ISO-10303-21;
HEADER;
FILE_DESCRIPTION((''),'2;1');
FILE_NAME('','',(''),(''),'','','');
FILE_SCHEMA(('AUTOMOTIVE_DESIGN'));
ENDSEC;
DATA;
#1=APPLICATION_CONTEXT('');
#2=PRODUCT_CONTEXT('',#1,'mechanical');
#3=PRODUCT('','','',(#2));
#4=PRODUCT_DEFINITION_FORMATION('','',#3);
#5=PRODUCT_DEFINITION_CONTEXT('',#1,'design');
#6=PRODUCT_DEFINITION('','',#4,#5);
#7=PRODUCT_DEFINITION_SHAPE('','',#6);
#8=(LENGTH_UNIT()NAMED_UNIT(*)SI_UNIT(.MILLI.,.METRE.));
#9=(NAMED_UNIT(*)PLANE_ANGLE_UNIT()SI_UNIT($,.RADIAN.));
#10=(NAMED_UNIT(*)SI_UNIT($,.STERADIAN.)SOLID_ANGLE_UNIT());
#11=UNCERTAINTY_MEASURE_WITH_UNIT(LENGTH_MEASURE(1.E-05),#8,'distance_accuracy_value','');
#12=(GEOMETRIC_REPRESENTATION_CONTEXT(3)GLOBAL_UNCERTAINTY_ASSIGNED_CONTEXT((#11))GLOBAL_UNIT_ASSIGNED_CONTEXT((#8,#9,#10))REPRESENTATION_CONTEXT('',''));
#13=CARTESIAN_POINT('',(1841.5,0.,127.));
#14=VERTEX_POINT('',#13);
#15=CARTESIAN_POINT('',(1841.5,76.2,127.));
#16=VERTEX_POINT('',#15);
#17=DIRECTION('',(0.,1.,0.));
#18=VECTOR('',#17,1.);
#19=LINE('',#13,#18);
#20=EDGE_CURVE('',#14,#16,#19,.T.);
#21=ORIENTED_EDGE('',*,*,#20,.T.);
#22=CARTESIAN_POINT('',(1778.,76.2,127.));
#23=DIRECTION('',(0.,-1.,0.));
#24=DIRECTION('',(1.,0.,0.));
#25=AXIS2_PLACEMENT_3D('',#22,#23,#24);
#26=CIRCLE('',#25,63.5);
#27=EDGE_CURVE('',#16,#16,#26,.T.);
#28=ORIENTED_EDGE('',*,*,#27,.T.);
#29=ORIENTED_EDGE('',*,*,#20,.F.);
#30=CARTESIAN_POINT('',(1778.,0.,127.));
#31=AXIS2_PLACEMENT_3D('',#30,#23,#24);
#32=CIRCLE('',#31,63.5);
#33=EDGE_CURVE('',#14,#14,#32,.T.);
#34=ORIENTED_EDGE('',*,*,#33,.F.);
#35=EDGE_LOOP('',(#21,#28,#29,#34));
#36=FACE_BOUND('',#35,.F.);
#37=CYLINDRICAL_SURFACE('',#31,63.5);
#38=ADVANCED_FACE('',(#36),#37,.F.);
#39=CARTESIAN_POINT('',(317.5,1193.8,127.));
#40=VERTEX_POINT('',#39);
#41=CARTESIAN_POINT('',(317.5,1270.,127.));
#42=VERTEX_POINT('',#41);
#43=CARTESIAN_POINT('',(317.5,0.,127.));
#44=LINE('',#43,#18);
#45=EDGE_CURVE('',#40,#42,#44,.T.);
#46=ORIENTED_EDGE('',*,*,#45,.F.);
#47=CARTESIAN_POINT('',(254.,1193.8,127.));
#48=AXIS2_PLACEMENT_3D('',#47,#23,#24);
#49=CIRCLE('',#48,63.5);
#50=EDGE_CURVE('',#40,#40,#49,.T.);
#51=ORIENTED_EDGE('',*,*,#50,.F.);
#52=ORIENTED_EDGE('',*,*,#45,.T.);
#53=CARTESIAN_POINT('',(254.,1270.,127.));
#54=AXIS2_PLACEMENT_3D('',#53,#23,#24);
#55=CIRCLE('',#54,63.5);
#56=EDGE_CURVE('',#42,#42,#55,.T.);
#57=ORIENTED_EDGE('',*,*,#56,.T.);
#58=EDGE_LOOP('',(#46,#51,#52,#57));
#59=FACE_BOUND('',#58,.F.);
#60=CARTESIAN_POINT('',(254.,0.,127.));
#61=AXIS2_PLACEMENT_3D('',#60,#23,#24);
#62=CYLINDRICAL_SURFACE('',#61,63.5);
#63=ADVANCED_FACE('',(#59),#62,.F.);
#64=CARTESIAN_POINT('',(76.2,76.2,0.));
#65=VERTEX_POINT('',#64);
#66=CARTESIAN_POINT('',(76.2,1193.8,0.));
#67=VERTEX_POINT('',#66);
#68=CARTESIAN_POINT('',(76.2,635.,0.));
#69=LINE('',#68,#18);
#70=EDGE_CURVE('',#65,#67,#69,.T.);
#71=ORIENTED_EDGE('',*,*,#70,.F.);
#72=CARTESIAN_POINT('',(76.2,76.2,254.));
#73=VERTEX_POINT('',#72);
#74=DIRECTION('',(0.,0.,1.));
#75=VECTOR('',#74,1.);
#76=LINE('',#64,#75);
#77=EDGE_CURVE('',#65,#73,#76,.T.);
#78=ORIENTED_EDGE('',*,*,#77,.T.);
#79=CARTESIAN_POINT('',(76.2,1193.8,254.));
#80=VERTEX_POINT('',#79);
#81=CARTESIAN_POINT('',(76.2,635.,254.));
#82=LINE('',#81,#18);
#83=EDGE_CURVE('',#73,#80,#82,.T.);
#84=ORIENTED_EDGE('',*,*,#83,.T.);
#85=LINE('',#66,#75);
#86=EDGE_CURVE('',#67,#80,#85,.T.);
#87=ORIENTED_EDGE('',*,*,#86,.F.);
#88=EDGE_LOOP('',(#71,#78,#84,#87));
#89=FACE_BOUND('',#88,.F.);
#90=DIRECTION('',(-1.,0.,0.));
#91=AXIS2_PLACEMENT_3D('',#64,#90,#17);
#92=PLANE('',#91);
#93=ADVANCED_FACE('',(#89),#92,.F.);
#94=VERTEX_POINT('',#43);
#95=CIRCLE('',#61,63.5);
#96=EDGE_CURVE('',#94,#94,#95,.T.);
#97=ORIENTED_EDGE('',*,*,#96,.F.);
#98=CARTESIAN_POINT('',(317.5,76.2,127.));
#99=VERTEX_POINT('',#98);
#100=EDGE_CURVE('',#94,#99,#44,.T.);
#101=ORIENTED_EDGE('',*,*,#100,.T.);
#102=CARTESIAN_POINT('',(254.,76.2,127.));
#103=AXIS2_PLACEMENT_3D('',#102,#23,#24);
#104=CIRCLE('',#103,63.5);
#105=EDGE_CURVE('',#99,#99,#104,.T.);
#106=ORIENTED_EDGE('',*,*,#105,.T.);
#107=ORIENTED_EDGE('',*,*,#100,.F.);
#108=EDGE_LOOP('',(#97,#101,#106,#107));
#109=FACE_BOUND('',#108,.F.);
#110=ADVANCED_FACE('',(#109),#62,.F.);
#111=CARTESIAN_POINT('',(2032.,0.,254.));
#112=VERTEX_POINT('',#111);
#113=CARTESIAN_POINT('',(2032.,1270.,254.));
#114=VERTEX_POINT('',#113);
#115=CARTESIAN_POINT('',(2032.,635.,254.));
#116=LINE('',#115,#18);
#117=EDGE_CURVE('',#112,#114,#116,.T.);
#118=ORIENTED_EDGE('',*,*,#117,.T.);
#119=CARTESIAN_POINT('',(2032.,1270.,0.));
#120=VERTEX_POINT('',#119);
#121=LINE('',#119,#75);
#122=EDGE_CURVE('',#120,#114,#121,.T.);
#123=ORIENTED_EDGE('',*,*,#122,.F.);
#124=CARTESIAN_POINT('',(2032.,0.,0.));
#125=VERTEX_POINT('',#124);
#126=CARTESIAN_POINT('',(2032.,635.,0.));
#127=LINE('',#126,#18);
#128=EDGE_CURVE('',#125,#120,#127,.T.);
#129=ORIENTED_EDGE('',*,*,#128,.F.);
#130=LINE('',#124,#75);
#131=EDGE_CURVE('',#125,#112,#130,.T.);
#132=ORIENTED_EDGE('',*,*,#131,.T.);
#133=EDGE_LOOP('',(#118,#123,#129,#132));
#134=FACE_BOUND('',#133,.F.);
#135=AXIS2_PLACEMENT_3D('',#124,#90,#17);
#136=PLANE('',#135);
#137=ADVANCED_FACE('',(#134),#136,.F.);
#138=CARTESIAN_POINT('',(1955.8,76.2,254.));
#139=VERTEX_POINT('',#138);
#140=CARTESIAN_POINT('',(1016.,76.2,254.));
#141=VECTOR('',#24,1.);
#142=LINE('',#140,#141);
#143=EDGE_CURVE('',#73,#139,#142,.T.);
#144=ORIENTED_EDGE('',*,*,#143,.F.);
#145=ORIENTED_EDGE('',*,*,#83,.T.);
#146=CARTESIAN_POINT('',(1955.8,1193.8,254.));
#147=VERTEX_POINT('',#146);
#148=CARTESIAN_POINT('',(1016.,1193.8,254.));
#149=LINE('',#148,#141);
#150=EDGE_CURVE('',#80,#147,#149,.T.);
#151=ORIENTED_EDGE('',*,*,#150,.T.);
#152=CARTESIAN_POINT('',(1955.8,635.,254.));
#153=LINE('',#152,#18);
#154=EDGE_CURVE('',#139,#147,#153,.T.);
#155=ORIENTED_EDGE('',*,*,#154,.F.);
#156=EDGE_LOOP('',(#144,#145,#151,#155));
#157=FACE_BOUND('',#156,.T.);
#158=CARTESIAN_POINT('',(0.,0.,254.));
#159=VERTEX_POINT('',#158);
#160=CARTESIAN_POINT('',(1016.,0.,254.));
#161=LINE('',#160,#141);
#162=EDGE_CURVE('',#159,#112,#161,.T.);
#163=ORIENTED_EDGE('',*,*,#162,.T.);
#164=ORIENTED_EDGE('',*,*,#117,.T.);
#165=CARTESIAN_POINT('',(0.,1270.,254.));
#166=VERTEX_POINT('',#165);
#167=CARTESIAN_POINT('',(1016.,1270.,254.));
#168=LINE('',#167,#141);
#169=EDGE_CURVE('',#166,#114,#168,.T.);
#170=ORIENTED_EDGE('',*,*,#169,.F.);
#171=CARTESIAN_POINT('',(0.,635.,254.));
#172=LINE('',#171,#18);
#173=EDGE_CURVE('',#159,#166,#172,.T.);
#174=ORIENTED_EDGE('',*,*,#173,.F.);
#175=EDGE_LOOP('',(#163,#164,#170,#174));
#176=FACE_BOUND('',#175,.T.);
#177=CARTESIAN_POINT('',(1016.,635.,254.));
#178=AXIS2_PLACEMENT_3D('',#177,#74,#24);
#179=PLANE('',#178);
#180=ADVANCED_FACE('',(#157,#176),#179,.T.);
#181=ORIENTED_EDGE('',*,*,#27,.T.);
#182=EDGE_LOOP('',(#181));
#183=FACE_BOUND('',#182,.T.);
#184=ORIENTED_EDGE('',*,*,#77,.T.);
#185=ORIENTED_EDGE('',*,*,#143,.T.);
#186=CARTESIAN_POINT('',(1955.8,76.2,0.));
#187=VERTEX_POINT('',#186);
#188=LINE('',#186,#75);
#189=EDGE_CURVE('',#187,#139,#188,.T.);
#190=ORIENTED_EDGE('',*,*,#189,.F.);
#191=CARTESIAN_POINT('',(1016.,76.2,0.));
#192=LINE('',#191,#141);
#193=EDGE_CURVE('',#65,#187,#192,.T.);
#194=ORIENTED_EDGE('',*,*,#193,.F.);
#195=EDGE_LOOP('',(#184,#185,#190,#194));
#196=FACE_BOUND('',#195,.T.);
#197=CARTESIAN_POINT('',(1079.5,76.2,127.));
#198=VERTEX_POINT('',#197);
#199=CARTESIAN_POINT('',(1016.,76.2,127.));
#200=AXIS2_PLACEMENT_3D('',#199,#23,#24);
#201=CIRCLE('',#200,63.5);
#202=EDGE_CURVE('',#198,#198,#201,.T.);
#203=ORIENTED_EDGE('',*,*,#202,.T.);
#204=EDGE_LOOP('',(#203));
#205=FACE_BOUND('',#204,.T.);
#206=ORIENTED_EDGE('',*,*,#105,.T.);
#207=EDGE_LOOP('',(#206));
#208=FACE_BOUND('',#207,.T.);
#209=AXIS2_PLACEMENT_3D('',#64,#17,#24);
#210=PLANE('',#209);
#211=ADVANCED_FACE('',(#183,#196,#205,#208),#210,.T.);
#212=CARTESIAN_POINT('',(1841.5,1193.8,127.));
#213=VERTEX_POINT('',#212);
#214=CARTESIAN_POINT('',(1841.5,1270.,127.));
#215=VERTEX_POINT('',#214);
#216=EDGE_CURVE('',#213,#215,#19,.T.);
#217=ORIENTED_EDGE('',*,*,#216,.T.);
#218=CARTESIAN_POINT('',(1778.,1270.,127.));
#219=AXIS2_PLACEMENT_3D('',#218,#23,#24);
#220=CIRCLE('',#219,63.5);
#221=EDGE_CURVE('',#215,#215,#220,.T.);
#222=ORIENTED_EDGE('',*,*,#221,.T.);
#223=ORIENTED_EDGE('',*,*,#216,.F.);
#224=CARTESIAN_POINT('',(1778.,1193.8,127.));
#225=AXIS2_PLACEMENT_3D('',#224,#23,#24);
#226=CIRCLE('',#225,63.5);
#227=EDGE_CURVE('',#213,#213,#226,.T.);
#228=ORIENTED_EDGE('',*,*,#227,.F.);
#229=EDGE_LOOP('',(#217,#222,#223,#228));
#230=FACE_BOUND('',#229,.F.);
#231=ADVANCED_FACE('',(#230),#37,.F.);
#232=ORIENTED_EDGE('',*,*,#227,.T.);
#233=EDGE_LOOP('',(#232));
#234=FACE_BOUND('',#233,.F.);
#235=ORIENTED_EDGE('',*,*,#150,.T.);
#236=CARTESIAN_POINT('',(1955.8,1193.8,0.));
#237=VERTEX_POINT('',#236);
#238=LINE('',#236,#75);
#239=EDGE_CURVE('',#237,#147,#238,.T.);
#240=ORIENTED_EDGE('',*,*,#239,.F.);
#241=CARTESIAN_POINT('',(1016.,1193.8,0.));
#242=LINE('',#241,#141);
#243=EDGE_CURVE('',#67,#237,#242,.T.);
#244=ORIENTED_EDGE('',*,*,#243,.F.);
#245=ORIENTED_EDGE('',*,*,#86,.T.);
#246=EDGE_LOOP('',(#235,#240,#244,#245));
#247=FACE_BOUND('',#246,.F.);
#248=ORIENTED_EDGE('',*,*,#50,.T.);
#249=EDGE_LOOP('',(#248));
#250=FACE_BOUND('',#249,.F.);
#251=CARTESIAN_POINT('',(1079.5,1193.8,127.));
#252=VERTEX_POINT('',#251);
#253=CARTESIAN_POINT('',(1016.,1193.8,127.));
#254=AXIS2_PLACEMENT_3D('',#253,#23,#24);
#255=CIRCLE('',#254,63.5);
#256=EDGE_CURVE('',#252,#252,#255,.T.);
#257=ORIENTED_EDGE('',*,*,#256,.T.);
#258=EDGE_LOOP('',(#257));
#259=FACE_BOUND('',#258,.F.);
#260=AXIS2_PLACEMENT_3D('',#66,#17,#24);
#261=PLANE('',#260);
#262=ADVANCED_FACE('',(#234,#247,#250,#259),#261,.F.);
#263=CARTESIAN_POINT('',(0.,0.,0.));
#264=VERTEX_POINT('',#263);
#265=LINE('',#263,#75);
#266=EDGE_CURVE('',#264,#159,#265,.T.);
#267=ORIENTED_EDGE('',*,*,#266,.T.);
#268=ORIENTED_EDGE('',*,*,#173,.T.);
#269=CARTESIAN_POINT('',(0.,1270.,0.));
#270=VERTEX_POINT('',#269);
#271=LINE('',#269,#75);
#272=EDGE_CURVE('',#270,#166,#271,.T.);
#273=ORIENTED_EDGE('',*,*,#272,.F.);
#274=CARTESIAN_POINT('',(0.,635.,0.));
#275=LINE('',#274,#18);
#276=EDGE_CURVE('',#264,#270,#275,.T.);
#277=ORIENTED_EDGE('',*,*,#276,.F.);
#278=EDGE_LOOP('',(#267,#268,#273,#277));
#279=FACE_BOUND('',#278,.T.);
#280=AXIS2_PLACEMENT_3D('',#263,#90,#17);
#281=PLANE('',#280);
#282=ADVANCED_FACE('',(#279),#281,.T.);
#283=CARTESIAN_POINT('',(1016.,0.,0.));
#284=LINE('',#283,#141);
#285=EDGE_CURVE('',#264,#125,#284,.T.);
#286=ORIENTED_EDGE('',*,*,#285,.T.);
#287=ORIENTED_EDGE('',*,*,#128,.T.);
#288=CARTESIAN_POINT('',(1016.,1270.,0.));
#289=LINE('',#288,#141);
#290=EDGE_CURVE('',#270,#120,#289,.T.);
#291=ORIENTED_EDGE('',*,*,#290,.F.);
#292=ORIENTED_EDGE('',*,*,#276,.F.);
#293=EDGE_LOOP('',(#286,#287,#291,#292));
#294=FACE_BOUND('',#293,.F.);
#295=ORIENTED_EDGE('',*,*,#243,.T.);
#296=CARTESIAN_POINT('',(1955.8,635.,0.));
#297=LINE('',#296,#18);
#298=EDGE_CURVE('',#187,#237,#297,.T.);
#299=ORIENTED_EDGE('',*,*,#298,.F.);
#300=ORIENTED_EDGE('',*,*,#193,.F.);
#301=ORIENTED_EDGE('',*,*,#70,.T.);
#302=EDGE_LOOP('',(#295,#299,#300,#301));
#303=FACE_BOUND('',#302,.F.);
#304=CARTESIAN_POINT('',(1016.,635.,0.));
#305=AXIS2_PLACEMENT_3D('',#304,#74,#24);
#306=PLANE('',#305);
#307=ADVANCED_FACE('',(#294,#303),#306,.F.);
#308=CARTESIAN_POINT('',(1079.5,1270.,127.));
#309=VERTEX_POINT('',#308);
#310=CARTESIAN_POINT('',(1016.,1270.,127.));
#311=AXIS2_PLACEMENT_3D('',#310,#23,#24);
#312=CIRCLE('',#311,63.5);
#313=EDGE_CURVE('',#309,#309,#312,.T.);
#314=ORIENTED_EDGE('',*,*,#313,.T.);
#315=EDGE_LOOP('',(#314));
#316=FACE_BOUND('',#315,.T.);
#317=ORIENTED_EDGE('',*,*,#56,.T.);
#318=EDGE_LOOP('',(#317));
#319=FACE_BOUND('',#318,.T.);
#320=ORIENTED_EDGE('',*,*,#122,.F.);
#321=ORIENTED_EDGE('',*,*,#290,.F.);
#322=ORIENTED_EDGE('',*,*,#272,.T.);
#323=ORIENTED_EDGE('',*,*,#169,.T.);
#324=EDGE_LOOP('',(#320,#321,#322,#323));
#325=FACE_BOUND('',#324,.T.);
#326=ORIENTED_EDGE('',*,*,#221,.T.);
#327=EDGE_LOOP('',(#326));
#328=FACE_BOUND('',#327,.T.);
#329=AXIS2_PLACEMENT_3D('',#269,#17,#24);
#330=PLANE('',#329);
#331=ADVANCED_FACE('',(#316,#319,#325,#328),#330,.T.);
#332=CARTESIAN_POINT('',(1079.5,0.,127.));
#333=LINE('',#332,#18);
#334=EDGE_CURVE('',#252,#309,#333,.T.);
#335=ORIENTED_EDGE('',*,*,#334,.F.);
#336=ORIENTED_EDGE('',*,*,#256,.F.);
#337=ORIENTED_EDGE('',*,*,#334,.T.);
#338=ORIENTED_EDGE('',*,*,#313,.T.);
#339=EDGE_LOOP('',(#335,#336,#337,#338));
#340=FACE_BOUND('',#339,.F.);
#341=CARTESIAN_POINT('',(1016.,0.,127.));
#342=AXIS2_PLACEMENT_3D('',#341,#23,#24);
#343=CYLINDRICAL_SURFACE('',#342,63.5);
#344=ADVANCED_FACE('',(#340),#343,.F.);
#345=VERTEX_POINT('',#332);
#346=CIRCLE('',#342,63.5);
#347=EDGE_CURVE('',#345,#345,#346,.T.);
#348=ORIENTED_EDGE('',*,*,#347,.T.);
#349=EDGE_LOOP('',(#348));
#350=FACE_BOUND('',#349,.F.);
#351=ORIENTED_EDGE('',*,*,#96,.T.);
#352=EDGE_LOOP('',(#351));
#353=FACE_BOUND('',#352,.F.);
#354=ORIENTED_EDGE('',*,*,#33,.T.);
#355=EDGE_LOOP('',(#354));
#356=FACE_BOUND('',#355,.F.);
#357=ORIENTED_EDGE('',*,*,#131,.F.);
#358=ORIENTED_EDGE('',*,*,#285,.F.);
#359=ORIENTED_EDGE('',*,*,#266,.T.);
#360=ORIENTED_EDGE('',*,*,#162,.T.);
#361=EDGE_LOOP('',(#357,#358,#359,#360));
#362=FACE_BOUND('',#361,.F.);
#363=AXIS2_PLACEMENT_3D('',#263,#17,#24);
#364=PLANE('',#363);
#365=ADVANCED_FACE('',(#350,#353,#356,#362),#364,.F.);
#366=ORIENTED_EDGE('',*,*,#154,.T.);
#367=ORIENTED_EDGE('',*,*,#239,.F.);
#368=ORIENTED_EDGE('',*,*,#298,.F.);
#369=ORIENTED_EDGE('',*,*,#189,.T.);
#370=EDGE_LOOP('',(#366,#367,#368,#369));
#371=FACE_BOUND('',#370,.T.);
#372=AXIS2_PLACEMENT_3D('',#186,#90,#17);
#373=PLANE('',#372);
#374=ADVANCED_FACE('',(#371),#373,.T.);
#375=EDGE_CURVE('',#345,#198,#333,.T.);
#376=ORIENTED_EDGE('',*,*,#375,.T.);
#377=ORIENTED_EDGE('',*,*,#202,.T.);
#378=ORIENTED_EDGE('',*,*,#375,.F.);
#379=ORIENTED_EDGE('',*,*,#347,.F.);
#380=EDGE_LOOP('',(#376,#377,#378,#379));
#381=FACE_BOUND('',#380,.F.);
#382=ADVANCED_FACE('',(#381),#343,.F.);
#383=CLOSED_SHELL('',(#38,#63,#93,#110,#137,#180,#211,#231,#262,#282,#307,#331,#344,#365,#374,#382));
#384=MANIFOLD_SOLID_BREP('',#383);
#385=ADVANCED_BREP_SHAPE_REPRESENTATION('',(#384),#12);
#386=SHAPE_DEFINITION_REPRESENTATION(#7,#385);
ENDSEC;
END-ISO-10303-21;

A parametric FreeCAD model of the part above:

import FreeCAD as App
import Part
import Sketcher
Q = App.Units.Quantity

doc = App.newDocument("Part")
body = doc.addObject("PartDesign::Body", "Body")

sketch1 = body.newObject("Sketcher::SketchObject", "Sketch")
sketch1.AttachmentSupport = (doc.getObject("XY_Plane"), [""])
sketch1.MapMode = "FlatFace"
sketch1.addGeometry([
    Part.LineSegment(App.Vector(0, 1270, 0), App.Vector(0, 0, 0)),
    Part.LineSegment(App.Vector(0, 0, 0), App.Vector(2032, 0, 0)),
    Part.LineSegment(App.Vector(2032, 0, 0), App.Vector(2032, 1270, 0)),
    Part.LineSegment(App.Vector(2032, 1270, 0), App.Vector(0, 1270, 0)),
    Part.LineSegment(App.Vector(1956, 76, 0), App.Vector(76, 76, 0)),
    Part.LineSegment(App.Vector(76, 76, 0), App.Vector(76, 1194, 0)),
    Part.LineSegment(App.Vector(76, 1194, 0), App.Vector(1956, 1194, 0)),
    Part.LineSegment(App.Vector(1956, 1194, 0), App.Vector(1956, 76, 0)),
], False)
sketch1.addConstraint([
    Sketcher.Constraint("Coincident", 0, 2, 1, 1),
    Sketcher.Constraint("Coincident", 1, 2, 2, 1),
    Sketcher.Constraint("Coincident", 2, 2, 3, 1),
    Sketcher.Constraint("Coincident", 3, 2, 0, 1),
    Sketcher.Constraint("Coincident", 4, 2, 5, 1),
    Sketcher.Constraint("Coincident", 5, 2, 6, 1),
    Sketcher.Constraint("Coincident", 6, 2, 7, 1),
    Sketcher.Constraint("Coincident", 7, 2, 4, 1),
    Sketcher.Constraint("Vertical", 0),
    Sketcher.Constraint("Horizontal", 1),
    Sketcher.Constraint("Vertical", 2),
    Sketcher.Constraint("Horizontal", 3),
    Sketcher.Constraint("Horizontal", 4),
    Sketcher.Constraint("Vertical", 5),
    Sketcher.Constraint("Horizontal", 6),
    Sketcher.Constraint("Vertical", 7),
    Sketcher.Constraint("Coincident", 0, 2, -1, 1),
    Sketcher.Constraint("DistanceX", 1, 1, 1, 2, Q("80 in")),
    Sketcher.Constraint("DistanceX", 4, 2, 4, 1, Q("74 in")),
    Sketcher.Constraint("DistanceY", 0, 2, 0, 1, Q("50 in")),
    Sketcher.Constraint("DistanceY", 5, 1, 5, 2, Q("44 in")),
    Sketcher.Constraint("DistanceX", -1, 1, 4, 2, Q("3 in")),
    Sketcher.Constraint("DistanceY", -1, 1, 4, 2, Q("3 in")),
])
pad1 = body.newObject("PartDesign::Pad", "Pad")
pad1.Profile = sketch1
pad1.Length = Q("10 in")

sketch2 = body.newObject("Sketcher::SketchObject", "Sketch001")
sketch2.AttachmentSupport = (doc.getObject("XZ_Plane"), [""])
sketch2.MapMode = "FlatFace"
sketch2.addGeometry([
    Part.Circle(App.Vector(1778, 127, 0), App.Vector(0, 0, 1), 64),
    Part.Circle(App.Vector(1016, 127, 0), App.Vector(0, 0, 1), 64),
    Part.Circle(App.Vector(254, 127, 0), App.Vector(0, 0, 1), 64),
], False)
sketch2.addConstraint([
    Sketcher.Constraint("Equal", 0, 1),
    Sketcher.Constraint("Equal", 1, 2),
    Sketcher.Constraint("Horizontal", 0, 3, 1, 3),
    Sketcher.Constraint("Horizontal", 1, 3, 2, 3),
    Sketcher.Constraint("Diameter", 0, Q("5 in")),
    Sketcher.Constraint("DistanceX", -1, 1, 0, 3, Q("70 in")),
    Sketcher.Constraint("DistanceY", -1, 1, 0, 3, Q("5 in")),
    Sketcher.Constraint("DistanceX", -1, 1, 1, 3, Q("40 in")),
    Sketcher.Constraint("DistanceX", -1, 1, 2, 3, Q("10 in")),
])
pocket1 = body.newObject("PartDesign::Pocket", "Pocket")
pocket1.Profile = sketch2
pocket1.Type = "ThroughAll"

doc.recompute()
